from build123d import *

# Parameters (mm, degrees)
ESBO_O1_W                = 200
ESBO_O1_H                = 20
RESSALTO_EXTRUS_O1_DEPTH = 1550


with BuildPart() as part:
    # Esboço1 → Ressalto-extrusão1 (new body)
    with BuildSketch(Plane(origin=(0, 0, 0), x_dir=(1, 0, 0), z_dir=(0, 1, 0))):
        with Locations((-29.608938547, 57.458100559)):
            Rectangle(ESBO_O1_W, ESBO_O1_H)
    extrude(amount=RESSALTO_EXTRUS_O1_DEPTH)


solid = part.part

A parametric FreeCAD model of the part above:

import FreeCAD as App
import Part
import Sketcher
from FreeCAD import Vector


def add_polygon(sketch, points):
    """Adds a closed chain of lines whose ends are joined by coincident constraints."""
    first, n = sketch.GeometryCount, len(points)
    for a, b in zip(points, points[1:] + points[:1]):
        sketch.addGeometry(Part.LineSegment(App.Vector(*a, 0), App.Vector(*b, 0)), False)
    for i in range(n):
        sketch.addConstraint(Sketcher.Constraint("Coincident", first + i, 2, first + (i + 1) % n, 1))

doc = App.newDocument("Part")
body = doc.addObject("PartDesign::Body", "Body")

sketch1 = doc.addObject("Sketcher::SketchObject", "Sketch")
body.addObject(sketch1)
sketch1.AttachmentSupport = (doc.XZ_Plane, [""])
sketch1.MapMode = "FlatFace"
add_polygon(sketch1, [(-129.608939, -67.458101), (-129.608939, -47.458101), (70.391061, -47.458101), (70.391061, -67.458101)])
sketch1.addConstraint([
    Sketcher.Constraint("Vertical", 0),
    Sketcher.Constraint("Horizontal", 1),
    Sketcher.Constraint("Vertical", 2),
    Sketcher.Constraint("Horizontal", 3),
    Sketcher.Constraint("DistanceX", 1, 1, 1, 2, 200.0),
    Sketcher.Constraint("DistanceY", 0, 1, 0, 2, 20.0),
    Sketcher.Constraint("DistanceY", 0, 2, -1, 1, 47.458101),
    Sketcher.Constraint("DistanceX", 0, 2, -1, 1, 129.608939),
])
pad1 = doc.addObject("PartDesign::Pad", "Pad")
body.addObject(pad1)
pad1.Profile = sketch1
pad1.Length = 1550
pad1.Reversed = True

doc.recompute()
